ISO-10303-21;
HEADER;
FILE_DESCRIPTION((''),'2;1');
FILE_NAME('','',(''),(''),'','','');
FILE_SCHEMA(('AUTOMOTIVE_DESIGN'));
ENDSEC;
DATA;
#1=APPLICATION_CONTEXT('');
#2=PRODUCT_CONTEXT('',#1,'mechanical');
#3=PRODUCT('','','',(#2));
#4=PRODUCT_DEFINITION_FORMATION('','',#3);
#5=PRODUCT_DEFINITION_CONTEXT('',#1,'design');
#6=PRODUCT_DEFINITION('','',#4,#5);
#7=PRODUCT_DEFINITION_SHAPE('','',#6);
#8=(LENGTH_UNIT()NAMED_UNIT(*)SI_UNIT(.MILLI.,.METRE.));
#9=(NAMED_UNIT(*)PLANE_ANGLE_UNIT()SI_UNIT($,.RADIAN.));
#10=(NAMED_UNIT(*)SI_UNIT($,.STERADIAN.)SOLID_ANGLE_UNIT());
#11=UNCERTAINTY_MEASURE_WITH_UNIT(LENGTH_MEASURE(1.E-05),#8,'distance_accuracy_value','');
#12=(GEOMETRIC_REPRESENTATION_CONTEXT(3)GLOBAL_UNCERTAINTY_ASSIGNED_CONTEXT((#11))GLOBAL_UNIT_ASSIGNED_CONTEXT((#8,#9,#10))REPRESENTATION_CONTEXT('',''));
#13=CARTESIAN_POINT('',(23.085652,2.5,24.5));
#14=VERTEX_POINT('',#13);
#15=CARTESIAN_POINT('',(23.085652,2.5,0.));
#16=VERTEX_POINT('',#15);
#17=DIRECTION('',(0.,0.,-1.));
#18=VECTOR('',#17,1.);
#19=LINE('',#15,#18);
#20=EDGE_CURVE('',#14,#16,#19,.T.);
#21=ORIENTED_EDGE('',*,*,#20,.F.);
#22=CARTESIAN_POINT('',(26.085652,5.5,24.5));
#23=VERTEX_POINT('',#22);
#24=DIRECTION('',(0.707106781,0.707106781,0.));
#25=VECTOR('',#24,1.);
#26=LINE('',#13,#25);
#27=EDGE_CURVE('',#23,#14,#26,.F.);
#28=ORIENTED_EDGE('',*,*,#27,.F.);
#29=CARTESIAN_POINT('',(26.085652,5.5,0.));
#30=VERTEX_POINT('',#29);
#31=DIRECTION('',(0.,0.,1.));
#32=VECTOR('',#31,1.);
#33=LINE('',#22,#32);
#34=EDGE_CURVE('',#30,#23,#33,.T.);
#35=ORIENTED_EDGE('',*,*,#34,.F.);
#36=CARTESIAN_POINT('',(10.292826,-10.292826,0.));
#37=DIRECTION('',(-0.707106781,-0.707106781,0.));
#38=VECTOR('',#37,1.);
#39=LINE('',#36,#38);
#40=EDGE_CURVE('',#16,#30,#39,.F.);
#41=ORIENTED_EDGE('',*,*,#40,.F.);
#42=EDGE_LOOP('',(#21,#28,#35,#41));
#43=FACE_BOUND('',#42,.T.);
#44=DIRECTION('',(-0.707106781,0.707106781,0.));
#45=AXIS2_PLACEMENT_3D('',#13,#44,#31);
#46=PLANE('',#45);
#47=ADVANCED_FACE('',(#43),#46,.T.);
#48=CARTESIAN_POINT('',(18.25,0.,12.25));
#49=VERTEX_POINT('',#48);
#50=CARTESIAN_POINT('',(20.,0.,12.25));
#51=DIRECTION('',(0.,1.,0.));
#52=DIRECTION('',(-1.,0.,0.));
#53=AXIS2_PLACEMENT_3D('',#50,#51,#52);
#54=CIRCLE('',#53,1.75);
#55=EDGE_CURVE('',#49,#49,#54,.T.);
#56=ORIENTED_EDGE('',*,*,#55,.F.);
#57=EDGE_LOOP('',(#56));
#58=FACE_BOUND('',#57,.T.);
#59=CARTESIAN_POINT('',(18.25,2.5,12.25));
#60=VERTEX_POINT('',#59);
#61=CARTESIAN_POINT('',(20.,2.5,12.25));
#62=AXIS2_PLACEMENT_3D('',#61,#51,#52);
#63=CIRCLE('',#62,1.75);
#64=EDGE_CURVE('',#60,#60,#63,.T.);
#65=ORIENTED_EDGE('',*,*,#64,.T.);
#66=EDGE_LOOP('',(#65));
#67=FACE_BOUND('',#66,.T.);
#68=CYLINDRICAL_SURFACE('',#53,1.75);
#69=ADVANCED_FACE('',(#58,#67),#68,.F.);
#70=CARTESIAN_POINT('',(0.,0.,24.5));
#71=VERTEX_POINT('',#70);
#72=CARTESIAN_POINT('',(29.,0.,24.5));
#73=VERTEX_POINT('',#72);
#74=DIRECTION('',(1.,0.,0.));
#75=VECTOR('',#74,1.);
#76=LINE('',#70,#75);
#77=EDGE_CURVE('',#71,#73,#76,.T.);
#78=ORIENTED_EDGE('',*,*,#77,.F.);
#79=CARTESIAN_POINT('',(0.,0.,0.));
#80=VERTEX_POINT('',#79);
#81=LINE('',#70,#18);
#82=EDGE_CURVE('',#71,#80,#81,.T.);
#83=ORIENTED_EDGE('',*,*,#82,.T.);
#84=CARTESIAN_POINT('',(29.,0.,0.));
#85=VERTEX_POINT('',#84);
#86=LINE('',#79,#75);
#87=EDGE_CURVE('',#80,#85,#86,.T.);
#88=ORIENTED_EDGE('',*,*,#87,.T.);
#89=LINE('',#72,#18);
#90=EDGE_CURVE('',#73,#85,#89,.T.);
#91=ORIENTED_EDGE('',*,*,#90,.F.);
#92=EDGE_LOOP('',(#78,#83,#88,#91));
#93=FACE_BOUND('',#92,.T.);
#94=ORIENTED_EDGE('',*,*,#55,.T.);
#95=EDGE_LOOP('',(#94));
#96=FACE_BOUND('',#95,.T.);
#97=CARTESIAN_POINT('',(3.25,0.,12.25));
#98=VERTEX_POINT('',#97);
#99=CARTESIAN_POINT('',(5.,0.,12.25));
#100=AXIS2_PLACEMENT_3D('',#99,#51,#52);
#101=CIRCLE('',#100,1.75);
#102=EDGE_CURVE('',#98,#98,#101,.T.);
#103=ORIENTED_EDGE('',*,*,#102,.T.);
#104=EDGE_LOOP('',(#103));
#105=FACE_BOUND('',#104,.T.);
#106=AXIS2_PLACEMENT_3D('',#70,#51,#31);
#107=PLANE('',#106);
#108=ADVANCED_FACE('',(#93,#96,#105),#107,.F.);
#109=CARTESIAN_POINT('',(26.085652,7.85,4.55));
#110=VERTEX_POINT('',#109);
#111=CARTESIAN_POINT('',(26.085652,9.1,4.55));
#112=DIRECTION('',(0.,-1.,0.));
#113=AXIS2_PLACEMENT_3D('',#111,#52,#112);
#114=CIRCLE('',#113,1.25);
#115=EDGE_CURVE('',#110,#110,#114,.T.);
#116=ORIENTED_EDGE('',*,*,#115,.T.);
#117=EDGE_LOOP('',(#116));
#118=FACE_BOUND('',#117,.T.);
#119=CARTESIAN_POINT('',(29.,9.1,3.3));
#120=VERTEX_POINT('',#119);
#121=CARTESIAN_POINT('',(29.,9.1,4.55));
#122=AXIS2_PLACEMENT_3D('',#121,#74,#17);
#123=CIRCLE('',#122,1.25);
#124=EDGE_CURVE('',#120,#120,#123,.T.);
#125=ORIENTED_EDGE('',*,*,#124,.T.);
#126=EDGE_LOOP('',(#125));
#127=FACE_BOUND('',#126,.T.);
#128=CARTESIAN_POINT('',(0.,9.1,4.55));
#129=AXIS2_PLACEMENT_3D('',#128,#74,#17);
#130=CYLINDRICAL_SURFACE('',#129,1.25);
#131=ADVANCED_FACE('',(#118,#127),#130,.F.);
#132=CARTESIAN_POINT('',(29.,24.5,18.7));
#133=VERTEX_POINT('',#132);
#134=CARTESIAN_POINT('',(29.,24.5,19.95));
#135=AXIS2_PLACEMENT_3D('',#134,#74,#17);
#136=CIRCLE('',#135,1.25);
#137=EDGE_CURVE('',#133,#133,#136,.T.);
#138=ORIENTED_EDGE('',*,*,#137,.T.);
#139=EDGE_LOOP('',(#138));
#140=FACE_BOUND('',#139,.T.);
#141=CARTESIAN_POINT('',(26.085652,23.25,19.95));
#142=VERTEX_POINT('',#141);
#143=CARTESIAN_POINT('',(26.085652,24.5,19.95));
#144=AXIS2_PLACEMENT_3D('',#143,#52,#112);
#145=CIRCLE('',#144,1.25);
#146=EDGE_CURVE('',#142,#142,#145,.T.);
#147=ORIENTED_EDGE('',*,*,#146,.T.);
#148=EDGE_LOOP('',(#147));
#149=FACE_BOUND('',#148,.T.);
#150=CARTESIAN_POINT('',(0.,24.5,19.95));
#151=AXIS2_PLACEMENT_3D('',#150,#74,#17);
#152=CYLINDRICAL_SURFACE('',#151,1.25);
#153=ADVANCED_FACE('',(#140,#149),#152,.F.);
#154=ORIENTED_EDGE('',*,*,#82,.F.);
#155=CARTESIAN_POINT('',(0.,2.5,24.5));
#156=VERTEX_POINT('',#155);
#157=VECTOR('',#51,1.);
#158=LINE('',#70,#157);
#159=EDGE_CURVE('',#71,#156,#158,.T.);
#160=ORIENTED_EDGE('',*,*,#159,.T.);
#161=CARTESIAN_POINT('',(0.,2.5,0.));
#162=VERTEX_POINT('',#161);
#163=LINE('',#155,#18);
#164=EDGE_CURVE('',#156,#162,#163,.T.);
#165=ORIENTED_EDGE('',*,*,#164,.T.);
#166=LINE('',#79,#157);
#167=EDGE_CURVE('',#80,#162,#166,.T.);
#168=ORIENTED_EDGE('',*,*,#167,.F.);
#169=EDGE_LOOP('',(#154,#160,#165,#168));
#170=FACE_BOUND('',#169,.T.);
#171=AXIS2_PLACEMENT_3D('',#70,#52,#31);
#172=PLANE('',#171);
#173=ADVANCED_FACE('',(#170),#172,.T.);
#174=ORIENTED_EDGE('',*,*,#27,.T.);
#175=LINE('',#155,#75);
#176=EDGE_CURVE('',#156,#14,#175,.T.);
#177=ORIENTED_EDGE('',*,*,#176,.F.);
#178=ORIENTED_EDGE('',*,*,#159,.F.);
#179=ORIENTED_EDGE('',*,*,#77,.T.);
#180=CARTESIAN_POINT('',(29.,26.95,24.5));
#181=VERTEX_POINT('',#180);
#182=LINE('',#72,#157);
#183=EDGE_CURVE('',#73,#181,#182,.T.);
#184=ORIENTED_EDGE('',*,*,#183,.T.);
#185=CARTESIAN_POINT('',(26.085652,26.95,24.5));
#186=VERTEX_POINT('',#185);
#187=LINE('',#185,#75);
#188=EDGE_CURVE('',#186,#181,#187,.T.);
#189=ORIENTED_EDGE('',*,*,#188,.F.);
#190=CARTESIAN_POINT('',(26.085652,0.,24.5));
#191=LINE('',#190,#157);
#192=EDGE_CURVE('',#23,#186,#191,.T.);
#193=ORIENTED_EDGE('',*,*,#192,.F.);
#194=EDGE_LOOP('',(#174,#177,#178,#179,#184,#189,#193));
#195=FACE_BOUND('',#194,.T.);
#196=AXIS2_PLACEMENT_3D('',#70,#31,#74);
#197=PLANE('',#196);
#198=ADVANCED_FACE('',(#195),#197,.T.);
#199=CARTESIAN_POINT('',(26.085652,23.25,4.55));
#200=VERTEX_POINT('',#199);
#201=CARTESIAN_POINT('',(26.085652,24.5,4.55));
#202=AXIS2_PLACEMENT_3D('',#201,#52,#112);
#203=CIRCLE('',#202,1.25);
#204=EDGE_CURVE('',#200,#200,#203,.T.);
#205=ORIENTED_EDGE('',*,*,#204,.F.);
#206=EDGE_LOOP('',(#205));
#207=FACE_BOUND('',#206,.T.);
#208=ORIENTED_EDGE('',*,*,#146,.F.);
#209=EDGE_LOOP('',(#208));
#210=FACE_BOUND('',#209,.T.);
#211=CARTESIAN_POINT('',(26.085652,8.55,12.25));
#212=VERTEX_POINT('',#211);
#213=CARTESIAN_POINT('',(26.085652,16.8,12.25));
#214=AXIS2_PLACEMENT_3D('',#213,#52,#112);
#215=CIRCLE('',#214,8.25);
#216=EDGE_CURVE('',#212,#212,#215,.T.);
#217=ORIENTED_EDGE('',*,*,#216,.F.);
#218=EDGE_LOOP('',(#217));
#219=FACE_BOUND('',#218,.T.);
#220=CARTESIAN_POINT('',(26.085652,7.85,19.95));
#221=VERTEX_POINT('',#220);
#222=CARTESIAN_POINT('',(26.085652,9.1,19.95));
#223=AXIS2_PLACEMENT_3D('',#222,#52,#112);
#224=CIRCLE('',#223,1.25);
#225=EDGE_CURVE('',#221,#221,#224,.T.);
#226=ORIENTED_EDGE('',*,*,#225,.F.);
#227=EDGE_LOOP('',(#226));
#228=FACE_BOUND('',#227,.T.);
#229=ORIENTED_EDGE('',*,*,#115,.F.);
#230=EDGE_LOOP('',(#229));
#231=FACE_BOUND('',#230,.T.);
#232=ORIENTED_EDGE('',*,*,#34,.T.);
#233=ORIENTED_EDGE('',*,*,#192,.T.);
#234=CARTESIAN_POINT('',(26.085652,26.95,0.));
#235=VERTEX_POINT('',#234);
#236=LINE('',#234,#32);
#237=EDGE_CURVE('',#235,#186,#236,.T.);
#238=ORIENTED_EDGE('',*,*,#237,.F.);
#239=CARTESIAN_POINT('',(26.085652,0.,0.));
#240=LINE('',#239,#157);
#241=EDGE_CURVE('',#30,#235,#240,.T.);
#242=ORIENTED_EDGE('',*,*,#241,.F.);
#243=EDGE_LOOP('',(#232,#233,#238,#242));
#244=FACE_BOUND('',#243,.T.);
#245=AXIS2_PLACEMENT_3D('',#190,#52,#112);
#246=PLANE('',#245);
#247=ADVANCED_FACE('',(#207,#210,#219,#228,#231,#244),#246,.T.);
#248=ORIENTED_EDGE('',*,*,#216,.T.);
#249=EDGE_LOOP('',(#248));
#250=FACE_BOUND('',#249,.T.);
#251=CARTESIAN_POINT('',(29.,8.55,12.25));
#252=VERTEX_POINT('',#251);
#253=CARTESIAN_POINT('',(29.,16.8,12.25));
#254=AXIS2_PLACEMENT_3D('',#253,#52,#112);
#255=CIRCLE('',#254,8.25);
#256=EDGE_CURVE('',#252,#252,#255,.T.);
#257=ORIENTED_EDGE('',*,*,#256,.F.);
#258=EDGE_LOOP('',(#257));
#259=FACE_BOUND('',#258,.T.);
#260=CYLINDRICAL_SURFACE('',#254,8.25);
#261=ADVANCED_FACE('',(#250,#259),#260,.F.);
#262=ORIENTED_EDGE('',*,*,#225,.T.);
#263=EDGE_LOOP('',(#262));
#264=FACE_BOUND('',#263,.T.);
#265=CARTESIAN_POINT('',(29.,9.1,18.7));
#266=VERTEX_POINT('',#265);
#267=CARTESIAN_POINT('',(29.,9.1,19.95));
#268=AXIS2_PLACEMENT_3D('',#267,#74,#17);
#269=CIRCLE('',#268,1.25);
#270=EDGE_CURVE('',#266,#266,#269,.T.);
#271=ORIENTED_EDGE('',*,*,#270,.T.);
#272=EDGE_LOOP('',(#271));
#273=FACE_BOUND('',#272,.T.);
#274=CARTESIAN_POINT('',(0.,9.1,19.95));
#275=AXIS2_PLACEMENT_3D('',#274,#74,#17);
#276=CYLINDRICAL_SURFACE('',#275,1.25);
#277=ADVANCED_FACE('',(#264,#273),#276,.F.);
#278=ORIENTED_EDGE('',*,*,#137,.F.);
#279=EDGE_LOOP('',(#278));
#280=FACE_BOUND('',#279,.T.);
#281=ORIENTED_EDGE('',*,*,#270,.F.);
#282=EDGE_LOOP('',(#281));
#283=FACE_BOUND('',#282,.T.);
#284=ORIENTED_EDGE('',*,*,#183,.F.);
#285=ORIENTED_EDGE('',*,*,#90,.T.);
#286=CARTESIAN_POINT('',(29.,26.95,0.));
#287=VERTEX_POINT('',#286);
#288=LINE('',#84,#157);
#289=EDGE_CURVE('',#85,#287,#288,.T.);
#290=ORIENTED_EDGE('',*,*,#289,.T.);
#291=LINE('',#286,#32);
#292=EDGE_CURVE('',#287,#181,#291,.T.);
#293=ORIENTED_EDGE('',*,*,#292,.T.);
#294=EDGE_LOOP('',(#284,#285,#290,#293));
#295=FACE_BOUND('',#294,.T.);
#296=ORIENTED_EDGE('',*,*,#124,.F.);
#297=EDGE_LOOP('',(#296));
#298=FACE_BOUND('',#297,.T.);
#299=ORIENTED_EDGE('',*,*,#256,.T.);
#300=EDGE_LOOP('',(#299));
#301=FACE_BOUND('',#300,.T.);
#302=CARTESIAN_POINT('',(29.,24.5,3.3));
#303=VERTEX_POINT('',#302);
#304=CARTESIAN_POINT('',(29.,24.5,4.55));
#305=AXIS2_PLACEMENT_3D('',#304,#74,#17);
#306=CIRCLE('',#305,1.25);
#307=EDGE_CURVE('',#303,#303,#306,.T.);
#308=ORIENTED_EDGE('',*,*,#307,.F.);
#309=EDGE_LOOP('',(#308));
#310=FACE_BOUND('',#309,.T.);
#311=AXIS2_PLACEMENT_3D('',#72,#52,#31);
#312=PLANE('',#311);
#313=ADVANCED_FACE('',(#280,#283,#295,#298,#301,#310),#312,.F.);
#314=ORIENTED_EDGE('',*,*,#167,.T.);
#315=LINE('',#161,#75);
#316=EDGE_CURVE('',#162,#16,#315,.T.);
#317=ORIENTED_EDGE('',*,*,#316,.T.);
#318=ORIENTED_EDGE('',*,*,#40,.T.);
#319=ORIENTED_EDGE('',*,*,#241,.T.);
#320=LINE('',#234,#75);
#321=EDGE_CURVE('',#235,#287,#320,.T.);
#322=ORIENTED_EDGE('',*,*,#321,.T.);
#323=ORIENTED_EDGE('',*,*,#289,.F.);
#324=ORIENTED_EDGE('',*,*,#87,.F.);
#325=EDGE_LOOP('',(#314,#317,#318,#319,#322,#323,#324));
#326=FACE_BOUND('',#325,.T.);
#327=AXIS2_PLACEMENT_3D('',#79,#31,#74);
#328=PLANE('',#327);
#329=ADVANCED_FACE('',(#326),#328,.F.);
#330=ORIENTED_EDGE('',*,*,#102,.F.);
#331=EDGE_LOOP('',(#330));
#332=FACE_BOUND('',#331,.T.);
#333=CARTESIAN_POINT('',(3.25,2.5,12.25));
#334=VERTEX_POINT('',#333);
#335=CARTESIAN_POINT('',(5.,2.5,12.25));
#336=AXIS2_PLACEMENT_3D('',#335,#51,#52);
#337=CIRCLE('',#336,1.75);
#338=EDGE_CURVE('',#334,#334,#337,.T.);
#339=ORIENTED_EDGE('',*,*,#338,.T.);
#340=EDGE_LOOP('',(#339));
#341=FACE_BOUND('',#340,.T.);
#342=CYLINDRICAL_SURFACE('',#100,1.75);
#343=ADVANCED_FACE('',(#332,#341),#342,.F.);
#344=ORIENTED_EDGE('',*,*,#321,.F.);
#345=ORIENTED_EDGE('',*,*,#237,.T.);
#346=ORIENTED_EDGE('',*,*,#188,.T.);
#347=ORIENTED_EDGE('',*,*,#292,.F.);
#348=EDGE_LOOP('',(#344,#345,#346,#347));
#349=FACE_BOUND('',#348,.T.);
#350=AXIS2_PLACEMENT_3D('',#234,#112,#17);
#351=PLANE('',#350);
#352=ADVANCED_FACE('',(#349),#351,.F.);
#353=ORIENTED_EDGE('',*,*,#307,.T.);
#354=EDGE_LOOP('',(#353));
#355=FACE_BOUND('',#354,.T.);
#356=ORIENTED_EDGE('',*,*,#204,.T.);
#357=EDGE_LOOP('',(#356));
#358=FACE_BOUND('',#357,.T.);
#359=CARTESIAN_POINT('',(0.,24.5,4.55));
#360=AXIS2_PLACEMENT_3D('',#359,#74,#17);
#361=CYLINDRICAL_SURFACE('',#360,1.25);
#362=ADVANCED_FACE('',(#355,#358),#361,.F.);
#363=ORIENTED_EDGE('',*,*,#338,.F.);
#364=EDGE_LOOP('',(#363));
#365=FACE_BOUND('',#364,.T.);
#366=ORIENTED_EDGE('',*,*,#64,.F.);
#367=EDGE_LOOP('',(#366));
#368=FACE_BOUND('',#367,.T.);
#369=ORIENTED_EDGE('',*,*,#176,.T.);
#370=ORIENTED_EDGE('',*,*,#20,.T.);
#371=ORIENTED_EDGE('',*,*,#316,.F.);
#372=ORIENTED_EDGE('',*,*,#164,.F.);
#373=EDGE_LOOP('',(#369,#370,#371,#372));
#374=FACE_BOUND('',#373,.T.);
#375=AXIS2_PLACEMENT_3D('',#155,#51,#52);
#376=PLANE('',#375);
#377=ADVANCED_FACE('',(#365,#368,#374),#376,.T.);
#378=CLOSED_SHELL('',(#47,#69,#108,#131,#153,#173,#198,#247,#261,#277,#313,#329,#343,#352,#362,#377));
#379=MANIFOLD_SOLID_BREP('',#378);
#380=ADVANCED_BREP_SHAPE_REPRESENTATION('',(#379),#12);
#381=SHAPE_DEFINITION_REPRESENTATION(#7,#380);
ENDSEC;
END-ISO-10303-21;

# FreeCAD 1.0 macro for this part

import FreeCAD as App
import Part
import Sketcher
from FreeCAD import Vector


def edges_at(feature, points):
    """Names of the edges that pass closest to the given points."""
    edges = feature.Shape.Edges
    near = lambda p: min(range(len(edges)), key=lambda i: edges[i].distToShape(Part.Vertex(*p))[0])
    return sorted({f"Edge{near(p) + 1}" for p in points})

doc = App.newDocument("Part")
params = doc.addObject("Spreadsheet::Sheet", "Params")
for row, (alias, value) in enumerate([
    ("sketch1_width", "29 mm"),
    ("sketch1_height", "25 mm"),
    ("sketch1_height2", "2.5 mm"),
    ("pad1_length", "24.5 mm"),
    ("sketch2_diameter", "2.5 mm"),
    ("sketch3_diameter", "3.5 mm"),
    ("sketch4_diameter", "16.5 mm"),
    ("sketch5_height", "0.55 mm"),
    ("chamfer_size", "3 mm"),
], start=1):
    params.set(f"A{row}", alias)
    params.set(f"B{row}", "=" + value)
    params.setAlias(f"B{row}", alias)

body = doc.addObject("PartDesign::Body", "Body")

sketch1 = doc.addObject("Sketcher::SketchObject", "Sketch")
body.addObject(sketch1)
sketch1.AttachmentSupport = (doc.XY_Plane, [""])
sketch1.MapMode = "FlatFace"
sketch1.addGeometry([
    Part.LineSegment(Vector(26.1, 27.5, 0), Vector(26.1, 2.5, 0)),
    Part.LineSegment(Vector(26.1, 2.5, 0), Vector(0, 2.5, 0)),
    Part.LineSegment(Vector(0, 2.5, 0), Vector(0, 0, 0)),
    Part.LineSegment(Vector(0, 0, 0), Vector(29, 0, 0)),
    Part.LineSegment(Vector(29, 0, 0), Vector(29, 27.5, 0)),
    Part.LineSegment(Vector(29, 27.5, 0), Vector(26.1, 27.5, 0)),
], False)
sketch1.addConstraint([
    Sketcher.Constraint("Coincident", 0, 2, 1, 1),
    Sketcher.Constraint("Coincident", 1, 2, 2, 1),
    Sketcher.Constraint("Coincident", 2, 2, 3, 1),
    Sketcher.Constraint("Coincident", 3, 2, 4, 1),
    Sketcher.Constraint("Coincident", 4, 2, 5, 1),
    Sketcher.Constraint("Coincident", 5, 2, 0, 1),
    Sketcher.Constraint("Vertical", 0),
    Sketcher.Constraint("Horizontal", 1),
    Sketcher.Constraint("Vertical", 2),
    Sketcher.Constraint("Horizontal", 3),
    Sketcher.Constraint("Vertical", 4),
    Sketcher.Constraint("Horizontal", 5),
    Sketcher.Constraint("Coincident", 2, 2, -1, 1),
    Sketcher.Constraint("DistanceX", 3, 1, 3, 2, 29.0),
    Sketcher.Constraint("DistanceY", 0, 2, 0, 1, 25.0),
    Sketcher.Constraint("DistanceY", 2, 2, 2, 1, 2.5),
    Sketcher.Constraint("DistanceX", 1, 2, 1, 1, 26.085652),
])
sketch1.setExpression("Constraints[13]", "Params.sketch1_width")
sketch1.setExpression("Constraints[14]", "Params.sketch1_height")
sketch1.setExpression("Constraints[15]", "Params.sketch1_height2")
pad1 = doc.addObject("PartDesign::Pad", "Pad")
body.addObject(pad1)
pad1.Profile = sketch1
pad1.setExpression("Length", "Params.pad1_length")

sketch2 = doc.addObject("Sketcher::SketchObject", "Sketch001")
body.addObject(sketch2)
sketch2.AttachmentSupport = (doc.YZ_Plane, [""])
sketch2.MapMode = "FlatFace"
sketch2.AttachmentOffset = App.Placement(Vector(0, 0, 29), App.Rotation())
sketch2.addGeometry([
    Part.Circle(Vector(24.5, 19.9, 0), Vector(0, 0, 1), 1.2),
    Part.Circle(Vector(24.5, 4.5, 0), Vector(0, 0, 1), 1.2),
    Part.Circle(Vector(9.1, 4.5, 0), Vector(0, 0, 1), 1.2),
    Part.Circle(Vector(9.1, 19.9, 0), Vector(0, 0, 1), 1.2),
], False)
sketch2.addConstraint([
    Sketcher.Constraint("Equal", 0, 1),
    Sketcher.Constraint("Equal", 1, 2),
    Sketcher.Constraint("Equal", 2, 3),
    Sketcher.Constraint("Horizontal", 1, 3, 2, 3),
    Sketcher.Constraint("Horizontal", 0, 3, 3, 3),
    Sketcher.Constraint("Vertical", 0, 3, 1, 3),
    Sketcher.Constraint("Vertical", 2, 3, 3, 3),
    Sketcher.Constraint("Diameter", 0, 2.5),
    Sketcher.Constraint("DistanceX", -1, 1, 0, 3, 24.5),
    Sketcher.Constraint("DistanceX", -1, 1, 2, 3, 9.1),
    Sketcher.Constraint("DistanceY", 1, 3, 0, 3, 15.4),
    Sketcher.Constraint("DistanceY", -1, 1, 0, 3, 19.95),
])
sketch2.setExpression("Constraints[7]", "Params.sketch2_diameter")
pocket1 = doc.addObject("PartDesign::Pocket", "Pocket")
body.addObject(pocket1)
pocket1.Profile = sketch2
pocket1.Type = "ThroughAll"

sketch3 = doc.addObject("Sketcher::SketchObject", "Sketch002")
body.addObject(sketch3)
sketch3.AttachmentSupport = (doc.XZ_Plane, [""])
sketch3.MapMode = "FlatFace"
sketch3.AttachmentOffset = App.Placement(Vector(0, 0, -2.5), App.Rotation())
sketch3.addGeometry([
    Part.Circle(Vector(5, 12.2, 0), Vector(0, 0, 1), 1.8),
    Part.Circle(Vector(20, 12.2, 0), Vector(0, 0, 1), 1.8),
], False)
sketch3.addConstraint([
    Sketcher.Constraint("Equal", 0, 1),
    Sketcher.Constraint("Horizontal", 0, 3, 1, 3),
    Sketcher.Constraint("Diameter", 0, 3.5),
    Sketcher.Constraint("DistanceX", -1, 1, 0, 3, 5.0),
    Sketcher.Constraint("DistanceX", -1, 1, 1, 3, 20.0),
    Sketcher.Constraint("DistanceY", -1, 1, 0, 3, 12.25),
])
sketch3.setExpression("Constraints[2]", "Params.sketch3_diameter")
pocket2 = doc.addObject("PartDesign::Pocket", "Pocket001")
body.addObject(pocket2)
pocket2.Profile = sketch3
pocket2.Type = "ThroughAll"
pocket2.Midplane = True

sketch4 = doc.addObject("Sketcher::SketchObject", "Sketch003")
body.addObject(sketch4)
sketch4.AttachmentSupport = (doc.YZ_Plane, [""])
sketch4.MapMode = "FlatFace"
sketch4.AttachmentOffset = App.Placement(Vector(0, 0, 26.085652), App.Rotation())
sketch4.addGeometry(Part.Circle(Vector(17, 12, 0), Vector(0, 0, 1), 8), False)
sketch4.addConstraint([
    Sketcher.Constraint("Diameter", 0, 16.5),
    Sketcher.Constraint("DistanceX", -1, 1, 0, 3, 16.8),
    Sketcher.Constraint("DistanceY", -1, 1, 0, 3, 12.25),
])
sketch4.setExpression("Constraints[0]", "Params.sketch4_diameter")
pocket3 = doc.addObject("PartDesign::Pocket", "Pocket002")
body.addObject(pocket3)
pocket3.Profile = sketch4
pocket3.Type = "ThroughAll"
pocket3.Midplane = True

sketch5 = doc.addObject("Sketcher::SketchObject", "Sketch004")
body.addObject(sketch5)
sketch5.AttachmentSupport = (doc.XY_Plane, [""])
sketch5.MapMode = "FlatFace"
sketch5.AttachmentOffset = App.Placement(Vector(0, 0, 24.5), App.Rotation())
sketch5.addGeometry([
    Part.LineSegment(Vector(26.1, 27.5, 0), Vector(26.1, 26.9, 0)),
    Part.LineSegment(Vector(26.1, 26.9, 0), Vector(29, 26.9, 0)),
    Part.LineSegment(Vector(29, 26.9, 0), Vector(29, 27.5, 0)),
    Part.LineSegment(Vector(29, 27.5, 0), Vector(26.1, 27.5, 0)),
], False)
sketch5.addConstraint([
    Sketcher.Constraint("Coincident", 0, 2, 1, 1),
    Sketcher.Constraint("Coincident", 1, 2, 2, 1),
    Sketcher.Constraint("Coincident", 2, 2, 3, 1),
    Sketcher.Constraint("Coincident", 3, 2, 0, 1),
    Sketcher.Constraint("Vertical", 0),
    Sketcher.Constraint("Horizontal", 1),
    Sketcher.Constraint("Vertical", 2),
    Sketcher.Constraint("Horizontal", 3),
    Sketcher.Constraint("DistanceX", -1, 1, 1, 2, 29.0),
    Sketcher.Constraint("DistanceY", 0, 2, 0, 1, 0.55),
    Sketcher.Constraint("DistanceY", -1, 1, 2, 2, 27.5),
    Sketcher.Constraint("DistanceX", 1, 1, 1, 2, 2.914348),
])
sketch5.setExpression("Constraints[9]", "Params.sketch5_height")
pocket4 = doc.addObject("PartDesign::Pocket", "Pocket003")
body.addObject(pocket4)
pocket4.Profile = sketch5
pocket4.Type = "ThroughAll"
pocket4.Midplane = True
doc.recompute()

chamfer = doc.addObject("PartDesign::Chamfer", "Chamfer")
body.addObject(chamfer)
chamfer.Base = (pocket4, edges_at(pocket4, [(26.086, 2.5, 12.25)]))
chamfer.setExpression("Size", "Params.chamfer_size")

doc.recompute()
